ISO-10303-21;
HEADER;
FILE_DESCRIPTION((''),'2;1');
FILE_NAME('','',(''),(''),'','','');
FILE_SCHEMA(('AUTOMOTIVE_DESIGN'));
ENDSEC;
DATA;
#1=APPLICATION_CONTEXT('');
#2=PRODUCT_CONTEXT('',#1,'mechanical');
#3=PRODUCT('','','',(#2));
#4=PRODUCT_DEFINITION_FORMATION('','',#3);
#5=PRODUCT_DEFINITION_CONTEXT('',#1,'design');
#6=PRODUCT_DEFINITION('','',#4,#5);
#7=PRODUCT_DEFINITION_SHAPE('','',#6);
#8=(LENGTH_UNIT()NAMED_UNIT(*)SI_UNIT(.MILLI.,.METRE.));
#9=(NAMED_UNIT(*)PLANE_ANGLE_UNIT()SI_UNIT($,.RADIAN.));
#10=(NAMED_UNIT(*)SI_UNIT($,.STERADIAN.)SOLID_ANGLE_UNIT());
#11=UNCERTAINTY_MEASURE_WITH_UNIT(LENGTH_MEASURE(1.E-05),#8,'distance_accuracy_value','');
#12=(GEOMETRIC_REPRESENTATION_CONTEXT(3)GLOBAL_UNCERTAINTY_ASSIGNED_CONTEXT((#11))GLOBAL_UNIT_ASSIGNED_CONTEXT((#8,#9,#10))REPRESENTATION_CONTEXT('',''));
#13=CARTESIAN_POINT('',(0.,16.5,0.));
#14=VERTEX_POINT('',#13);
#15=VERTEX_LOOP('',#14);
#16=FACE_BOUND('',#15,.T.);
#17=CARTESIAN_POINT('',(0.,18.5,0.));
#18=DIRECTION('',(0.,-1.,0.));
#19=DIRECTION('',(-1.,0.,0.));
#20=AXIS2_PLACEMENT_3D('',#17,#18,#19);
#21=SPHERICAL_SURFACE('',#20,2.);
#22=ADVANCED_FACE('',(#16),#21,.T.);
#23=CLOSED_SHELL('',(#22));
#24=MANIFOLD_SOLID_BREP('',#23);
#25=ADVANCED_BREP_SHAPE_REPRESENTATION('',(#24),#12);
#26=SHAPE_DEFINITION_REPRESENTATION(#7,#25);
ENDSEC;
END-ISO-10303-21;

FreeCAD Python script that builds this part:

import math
import FreeCAD as App
import Part
import Sketcher
Q = App.Units.Quantity

doc = App.newDocument("Part")
body = doc.addObject("PartDesign::Body", "Body")

sketch1 = doc.addObject("Sketcher::SketchObject", "Sketch")
body.addObject(sketch1)
sketch1.AttachmentSupport = (doc.XY_Plane, [""])
sketch1.MapMode = "FlatFace"
sketch1.addGeometry([
    Part.LineSegment(App.Vector(0, 16.5, 0), App.Vector(0, 20.5, 0)),
    Part.ArcOfCircle(Part.Circle(App.Vector(0, 18.5, 0), App.Vector(0, 0, 1), 2), math.radians(90), math.radians(270)),
], False)
sketch1.addConstraint([
    Sketcher.Constraint("Coincident", 0, 1, 1, 2),
    Sketcher.Constraint("Coincident", 1, 1, 0, 2),
    Sketcher.Constraint("Vertical", 0),
    Sketcher.Constraint("PointOnObject", 1, 3, -2),
    Sketcher.Constraint("PointOnObject", 0, 1, -2),
    Sketcher.Constraint("Radius", 1, Q("2 mm")),
    Sketcher.Constraint("DistanceY", -1, 1, 1, 3, Q("18.5 mm")),
])
revolution = doc.addObject("PartDesign::Revolution", "Revolution")
body.addObject(revolution)
revolution.Profile = sketch1
revolution.ReferenceAxis = (sketch1, ["V_Axis"])
revolution.Angle = 360

doc.recompute()
